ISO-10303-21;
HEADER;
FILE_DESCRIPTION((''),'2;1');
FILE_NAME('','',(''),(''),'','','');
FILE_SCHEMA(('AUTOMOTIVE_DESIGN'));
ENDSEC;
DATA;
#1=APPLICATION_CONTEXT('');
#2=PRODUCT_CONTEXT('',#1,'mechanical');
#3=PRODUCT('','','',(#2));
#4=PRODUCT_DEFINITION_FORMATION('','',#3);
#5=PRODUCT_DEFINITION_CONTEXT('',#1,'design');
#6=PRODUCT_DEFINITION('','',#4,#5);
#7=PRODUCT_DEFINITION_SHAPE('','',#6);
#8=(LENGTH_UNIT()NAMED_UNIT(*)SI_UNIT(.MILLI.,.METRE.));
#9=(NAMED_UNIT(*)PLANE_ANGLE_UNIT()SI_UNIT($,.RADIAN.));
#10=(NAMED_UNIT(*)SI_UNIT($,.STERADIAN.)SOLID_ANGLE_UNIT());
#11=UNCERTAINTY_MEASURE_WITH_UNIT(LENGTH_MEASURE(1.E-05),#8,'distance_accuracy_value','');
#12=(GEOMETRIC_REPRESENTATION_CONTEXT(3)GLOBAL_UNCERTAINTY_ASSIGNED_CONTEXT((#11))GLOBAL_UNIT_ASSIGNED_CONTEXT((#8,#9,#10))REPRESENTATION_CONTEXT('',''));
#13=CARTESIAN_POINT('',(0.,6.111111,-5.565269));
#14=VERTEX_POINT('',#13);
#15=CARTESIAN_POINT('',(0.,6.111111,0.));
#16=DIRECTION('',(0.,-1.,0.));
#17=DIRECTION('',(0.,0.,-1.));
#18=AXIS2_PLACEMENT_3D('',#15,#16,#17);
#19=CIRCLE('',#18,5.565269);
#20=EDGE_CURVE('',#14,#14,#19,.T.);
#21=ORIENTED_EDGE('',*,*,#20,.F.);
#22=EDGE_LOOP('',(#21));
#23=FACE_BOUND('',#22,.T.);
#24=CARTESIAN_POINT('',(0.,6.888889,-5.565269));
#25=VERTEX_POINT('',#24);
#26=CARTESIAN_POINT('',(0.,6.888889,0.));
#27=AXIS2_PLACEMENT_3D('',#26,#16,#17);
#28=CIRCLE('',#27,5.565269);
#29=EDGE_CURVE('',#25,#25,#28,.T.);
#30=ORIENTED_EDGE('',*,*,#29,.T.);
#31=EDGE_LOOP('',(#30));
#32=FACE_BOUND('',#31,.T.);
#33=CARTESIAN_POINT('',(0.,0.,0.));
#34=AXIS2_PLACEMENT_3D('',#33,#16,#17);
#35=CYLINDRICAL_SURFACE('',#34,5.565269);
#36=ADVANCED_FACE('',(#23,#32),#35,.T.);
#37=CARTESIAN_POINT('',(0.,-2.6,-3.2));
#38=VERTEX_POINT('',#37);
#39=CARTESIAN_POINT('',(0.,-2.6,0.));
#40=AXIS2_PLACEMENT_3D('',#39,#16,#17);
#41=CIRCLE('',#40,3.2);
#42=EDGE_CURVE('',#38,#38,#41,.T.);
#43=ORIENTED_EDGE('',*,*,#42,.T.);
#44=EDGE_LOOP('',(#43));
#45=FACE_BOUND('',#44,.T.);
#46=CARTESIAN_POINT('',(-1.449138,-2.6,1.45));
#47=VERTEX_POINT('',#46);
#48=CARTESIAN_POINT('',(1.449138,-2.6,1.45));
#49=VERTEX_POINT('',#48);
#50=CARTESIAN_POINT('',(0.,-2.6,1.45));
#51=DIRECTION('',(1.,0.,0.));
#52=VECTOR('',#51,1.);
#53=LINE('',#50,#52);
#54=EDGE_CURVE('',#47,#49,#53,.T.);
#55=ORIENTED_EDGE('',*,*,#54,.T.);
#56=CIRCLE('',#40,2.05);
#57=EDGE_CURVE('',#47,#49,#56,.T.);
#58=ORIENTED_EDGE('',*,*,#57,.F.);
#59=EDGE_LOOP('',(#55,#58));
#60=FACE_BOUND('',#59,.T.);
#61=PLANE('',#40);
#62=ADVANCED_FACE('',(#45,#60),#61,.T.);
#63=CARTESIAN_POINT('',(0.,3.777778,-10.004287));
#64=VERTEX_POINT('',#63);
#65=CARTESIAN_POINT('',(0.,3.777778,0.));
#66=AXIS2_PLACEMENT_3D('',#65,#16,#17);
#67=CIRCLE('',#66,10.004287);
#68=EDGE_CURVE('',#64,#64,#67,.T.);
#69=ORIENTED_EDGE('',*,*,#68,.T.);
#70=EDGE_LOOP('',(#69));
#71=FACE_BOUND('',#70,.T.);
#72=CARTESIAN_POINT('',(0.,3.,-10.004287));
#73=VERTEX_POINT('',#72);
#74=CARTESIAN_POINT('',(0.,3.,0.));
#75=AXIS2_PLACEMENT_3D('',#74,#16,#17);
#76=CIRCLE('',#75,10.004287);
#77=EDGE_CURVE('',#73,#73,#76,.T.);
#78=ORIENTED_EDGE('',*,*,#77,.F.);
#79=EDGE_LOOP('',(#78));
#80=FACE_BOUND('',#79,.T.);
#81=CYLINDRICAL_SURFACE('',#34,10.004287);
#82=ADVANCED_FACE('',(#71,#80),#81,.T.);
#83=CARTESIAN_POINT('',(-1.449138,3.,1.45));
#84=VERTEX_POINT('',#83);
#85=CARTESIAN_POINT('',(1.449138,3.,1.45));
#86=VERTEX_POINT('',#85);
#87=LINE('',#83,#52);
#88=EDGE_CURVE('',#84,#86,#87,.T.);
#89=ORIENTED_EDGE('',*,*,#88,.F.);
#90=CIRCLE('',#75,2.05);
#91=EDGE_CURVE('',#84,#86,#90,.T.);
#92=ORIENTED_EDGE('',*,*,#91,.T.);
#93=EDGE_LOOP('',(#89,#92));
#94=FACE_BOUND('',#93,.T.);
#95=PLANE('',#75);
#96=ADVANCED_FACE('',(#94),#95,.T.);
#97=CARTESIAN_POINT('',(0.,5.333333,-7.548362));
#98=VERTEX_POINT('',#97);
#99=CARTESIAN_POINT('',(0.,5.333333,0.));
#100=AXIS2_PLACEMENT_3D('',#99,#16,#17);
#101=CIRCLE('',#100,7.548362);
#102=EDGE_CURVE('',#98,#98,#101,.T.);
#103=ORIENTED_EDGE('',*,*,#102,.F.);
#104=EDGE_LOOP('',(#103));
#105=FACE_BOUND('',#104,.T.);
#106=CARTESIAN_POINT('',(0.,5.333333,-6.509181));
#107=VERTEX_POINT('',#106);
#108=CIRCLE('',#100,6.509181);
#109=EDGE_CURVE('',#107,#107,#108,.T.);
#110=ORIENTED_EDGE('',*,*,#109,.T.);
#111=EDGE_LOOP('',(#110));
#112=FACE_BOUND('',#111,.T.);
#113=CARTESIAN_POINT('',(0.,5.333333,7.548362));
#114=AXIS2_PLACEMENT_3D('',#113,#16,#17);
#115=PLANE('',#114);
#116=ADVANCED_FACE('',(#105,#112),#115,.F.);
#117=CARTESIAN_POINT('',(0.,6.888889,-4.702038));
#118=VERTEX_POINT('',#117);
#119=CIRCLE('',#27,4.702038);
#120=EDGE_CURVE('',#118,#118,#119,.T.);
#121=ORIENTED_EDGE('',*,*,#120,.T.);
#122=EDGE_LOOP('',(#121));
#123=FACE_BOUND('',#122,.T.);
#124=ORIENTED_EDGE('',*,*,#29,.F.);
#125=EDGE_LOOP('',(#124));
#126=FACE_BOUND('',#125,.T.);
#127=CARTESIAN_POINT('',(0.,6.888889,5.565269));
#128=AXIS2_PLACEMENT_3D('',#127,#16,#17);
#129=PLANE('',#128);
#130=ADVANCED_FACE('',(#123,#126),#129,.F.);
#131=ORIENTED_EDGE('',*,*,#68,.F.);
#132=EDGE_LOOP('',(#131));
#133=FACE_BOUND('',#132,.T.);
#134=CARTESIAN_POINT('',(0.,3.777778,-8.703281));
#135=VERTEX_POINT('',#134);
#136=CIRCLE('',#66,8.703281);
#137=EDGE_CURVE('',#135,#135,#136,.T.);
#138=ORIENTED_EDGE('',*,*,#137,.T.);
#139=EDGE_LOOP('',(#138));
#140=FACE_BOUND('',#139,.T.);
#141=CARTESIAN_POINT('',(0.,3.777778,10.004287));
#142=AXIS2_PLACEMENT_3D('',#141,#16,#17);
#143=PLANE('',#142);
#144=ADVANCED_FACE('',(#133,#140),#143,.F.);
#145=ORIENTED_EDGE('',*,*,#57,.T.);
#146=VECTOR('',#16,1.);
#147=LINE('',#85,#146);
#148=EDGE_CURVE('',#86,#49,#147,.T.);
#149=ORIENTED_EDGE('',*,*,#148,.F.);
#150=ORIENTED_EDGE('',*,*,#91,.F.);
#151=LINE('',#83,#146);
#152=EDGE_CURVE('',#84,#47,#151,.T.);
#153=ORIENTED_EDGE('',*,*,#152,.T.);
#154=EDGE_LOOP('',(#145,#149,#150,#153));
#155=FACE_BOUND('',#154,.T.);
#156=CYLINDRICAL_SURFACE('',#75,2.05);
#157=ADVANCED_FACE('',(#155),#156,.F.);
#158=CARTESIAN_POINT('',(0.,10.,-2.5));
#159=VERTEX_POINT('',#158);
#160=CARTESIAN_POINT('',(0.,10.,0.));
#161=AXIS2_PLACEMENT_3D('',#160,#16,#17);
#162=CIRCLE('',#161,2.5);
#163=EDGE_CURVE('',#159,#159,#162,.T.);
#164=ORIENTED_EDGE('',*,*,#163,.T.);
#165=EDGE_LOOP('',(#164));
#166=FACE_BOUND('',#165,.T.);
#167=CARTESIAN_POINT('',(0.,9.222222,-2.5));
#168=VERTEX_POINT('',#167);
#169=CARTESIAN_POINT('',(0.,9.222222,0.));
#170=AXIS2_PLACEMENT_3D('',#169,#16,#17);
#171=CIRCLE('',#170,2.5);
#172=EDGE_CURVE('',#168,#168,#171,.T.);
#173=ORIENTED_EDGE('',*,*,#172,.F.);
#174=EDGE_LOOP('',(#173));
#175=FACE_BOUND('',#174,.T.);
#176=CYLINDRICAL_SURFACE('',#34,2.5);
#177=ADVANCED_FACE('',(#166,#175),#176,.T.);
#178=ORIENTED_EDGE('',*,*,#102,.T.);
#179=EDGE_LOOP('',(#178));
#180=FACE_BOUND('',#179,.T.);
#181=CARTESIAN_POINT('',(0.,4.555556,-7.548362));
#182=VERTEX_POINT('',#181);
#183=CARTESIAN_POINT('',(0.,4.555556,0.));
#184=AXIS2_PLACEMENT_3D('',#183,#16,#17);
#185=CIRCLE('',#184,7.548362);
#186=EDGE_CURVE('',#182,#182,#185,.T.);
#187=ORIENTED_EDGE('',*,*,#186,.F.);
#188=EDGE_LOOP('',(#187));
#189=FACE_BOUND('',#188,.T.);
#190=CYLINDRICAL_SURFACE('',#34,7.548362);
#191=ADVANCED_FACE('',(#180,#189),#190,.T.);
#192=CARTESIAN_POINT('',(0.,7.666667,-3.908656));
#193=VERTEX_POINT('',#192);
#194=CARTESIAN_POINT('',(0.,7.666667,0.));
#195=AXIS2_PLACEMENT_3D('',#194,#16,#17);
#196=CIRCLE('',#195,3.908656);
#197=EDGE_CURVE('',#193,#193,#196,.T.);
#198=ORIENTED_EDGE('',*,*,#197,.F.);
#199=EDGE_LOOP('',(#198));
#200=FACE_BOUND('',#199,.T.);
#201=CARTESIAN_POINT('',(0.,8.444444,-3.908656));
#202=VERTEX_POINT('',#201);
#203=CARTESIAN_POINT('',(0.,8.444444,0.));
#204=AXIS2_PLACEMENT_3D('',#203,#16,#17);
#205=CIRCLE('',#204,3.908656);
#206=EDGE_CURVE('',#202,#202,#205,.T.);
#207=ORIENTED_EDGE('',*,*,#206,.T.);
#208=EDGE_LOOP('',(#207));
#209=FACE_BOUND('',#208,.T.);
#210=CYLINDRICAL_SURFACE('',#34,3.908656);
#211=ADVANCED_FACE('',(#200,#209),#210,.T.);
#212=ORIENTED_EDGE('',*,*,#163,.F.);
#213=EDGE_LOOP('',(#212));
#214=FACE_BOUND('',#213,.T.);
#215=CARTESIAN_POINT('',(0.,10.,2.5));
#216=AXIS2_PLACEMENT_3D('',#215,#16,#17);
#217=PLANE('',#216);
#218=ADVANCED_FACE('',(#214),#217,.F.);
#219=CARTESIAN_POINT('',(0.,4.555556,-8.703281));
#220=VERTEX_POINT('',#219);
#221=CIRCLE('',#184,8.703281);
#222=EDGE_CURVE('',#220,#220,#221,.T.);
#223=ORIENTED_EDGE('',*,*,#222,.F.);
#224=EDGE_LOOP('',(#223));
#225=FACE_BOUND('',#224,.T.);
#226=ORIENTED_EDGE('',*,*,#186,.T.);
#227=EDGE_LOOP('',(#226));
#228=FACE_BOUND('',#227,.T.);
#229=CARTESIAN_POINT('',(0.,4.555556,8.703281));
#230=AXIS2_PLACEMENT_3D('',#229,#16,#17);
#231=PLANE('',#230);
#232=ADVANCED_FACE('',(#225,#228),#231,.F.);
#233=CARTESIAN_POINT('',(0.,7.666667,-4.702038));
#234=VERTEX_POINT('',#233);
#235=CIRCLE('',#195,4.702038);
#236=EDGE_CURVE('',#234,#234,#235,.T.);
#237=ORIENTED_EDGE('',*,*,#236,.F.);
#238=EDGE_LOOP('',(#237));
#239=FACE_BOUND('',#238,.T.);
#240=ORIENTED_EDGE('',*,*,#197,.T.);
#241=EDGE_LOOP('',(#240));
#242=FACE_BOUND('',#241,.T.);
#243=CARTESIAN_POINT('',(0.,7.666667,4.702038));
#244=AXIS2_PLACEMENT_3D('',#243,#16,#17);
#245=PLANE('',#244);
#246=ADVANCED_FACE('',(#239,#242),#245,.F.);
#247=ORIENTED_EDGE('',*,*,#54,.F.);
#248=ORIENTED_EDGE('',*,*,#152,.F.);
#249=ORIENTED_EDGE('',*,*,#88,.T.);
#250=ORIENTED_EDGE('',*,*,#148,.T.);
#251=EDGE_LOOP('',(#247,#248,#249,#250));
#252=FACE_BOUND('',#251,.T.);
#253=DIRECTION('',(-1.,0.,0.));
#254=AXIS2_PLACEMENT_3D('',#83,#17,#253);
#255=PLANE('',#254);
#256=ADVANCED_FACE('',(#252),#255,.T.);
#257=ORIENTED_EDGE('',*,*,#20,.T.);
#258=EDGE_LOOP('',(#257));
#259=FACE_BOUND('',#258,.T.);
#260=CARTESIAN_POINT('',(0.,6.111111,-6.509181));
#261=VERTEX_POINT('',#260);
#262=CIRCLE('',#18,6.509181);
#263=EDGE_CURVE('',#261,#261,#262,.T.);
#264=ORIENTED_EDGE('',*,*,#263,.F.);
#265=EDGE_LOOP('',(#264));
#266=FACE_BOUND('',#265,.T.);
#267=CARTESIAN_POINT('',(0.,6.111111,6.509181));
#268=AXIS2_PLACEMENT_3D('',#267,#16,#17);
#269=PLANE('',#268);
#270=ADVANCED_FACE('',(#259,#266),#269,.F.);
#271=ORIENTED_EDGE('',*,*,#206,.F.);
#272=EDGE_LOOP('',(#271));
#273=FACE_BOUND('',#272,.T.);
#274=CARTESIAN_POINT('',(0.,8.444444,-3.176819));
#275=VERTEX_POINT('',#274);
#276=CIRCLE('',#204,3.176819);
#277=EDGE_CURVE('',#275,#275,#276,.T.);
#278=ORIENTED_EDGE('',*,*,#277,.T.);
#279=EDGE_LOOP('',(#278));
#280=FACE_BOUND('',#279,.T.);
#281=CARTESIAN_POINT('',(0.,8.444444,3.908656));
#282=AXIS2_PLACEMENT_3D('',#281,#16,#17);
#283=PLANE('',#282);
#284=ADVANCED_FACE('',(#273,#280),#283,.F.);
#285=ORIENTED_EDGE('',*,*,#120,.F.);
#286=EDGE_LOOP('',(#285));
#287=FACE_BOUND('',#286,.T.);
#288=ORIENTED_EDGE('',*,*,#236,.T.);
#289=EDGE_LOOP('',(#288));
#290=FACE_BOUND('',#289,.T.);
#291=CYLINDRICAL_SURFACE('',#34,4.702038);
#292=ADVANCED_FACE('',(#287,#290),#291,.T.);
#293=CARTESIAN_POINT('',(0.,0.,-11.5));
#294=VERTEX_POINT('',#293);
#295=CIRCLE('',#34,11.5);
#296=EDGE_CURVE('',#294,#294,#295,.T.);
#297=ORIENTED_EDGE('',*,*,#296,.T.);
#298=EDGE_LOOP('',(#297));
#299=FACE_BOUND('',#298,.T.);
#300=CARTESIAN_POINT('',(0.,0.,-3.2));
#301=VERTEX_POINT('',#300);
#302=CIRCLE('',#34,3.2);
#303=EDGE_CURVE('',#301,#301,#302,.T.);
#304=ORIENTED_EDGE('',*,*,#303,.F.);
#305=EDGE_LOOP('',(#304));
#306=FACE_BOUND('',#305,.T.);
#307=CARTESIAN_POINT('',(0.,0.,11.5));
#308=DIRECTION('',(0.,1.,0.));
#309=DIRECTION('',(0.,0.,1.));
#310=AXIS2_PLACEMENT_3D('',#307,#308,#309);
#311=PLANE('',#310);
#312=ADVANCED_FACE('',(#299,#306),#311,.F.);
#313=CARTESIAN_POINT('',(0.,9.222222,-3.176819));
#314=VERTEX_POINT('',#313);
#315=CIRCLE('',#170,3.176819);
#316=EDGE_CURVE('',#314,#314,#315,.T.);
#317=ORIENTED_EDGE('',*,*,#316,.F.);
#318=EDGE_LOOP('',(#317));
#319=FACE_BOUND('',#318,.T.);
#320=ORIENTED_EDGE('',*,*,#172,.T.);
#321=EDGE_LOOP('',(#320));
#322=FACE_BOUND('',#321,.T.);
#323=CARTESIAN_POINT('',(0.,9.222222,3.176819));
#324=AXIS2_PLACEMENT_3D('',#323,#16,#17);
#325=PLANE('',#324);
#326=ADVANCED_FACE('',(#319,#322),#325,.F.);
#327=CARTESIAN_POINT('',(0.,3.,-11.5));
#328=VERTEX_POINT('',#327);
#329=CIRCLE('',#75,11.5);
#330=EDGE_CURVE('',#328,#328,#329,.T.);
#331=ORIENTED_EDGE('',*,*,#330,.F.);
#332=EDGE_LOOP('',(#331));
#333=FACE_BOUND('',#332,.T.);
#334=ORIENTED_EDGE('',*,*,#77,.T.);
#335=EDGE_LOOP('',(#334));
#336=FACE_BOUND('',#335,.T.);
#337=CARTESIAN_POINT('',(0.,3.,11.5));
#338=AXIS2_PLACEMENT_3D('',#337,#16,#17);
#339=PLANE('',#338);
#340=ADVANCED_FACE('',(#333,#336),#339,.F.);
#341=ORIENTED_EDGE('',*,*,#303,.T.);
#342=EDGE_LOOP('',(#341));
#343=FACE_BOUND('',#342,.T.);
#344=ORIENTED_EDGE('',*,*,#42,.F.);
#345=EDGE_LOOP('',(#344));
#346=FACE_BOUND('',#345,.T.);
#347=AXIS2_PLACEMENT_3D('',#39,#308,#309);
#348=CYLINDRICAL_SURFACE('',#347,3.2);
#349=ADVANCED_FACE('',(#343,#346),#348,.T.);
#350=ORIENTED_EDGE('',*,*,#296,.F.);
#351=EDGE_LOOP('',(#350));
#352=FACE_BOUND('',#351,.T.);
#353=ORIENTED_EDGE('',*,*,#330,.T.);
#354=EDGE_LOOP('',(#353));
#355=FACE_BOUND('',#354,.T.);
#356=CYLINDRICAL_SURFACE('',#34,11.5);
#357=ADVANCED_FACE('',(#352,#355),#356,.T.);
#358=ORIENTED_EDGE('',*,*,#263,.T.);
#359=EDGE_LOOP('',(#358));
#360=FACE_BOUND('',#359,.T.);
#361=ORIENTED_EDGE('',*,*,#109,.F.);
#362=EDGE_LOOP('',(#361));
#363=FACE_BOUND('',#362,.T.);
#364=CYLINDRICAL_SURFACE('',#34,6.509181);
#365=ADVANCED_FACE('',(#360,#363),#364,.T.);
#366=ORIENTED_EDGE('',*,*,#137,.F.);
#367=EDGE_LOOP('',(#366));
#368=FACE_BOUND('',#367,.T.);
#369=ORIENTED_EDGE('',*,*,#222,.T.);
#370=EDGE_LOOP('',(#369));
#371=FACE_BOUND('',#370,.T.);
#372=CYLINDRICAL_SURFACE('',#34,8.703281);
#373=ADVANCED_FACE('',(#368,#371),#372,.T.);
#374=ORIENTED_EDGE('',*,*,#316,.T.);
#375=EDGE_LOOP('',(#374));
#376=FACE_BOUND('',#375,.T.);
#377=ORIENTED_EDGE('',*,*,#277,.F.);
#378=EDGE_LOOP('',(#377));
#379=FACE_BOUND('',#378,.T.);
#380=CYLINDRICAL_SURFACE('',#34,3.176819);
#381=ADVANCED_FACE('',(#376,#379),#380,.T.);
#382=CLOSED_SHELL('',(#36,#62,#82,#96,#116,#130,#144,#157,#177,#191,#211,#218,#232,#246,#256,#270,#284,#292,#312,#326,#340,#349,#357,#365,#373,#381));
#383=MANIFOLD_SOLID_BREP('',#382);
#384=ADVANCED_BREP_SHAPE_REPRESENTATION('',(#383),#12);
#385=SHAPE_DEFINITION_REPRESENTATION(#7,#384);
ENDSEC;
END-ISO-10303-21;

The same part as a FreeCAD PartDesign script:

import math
import FreeCAD as App
import Part
import Sketcher
from FreeCAD import Vector


def add_polygon(sketch, points):
    """Adds a closed chain of lines whose ends are joined by coincident constraints."""
    first, n = sketch.GeometryCount, len(points)
    for a, b in zip(points, points[1:] + points[:1]):
        sketch.addGeometry(Part.LineSegment(App.Vector(*a, 0), App.Vector(*b, 0)), False)
    for i in range(n):
        sketch.addConstraint(Sketcher.Constraint("Coincident", first + i, 2, first + (i + 1) % n, 1))

doc = App.newDocument("Part")
body = doc.addObject("PartDesign::Body", "Body")

# Sketch on YZ plane
sketch1 = body.newObject("Sketcher::SketchObject", "Sketch")
sketch1.AttachmentSupport = (doc.getObject("YZ_Plane"), [""])
sketch1.MapMode = "FlatFace"
add_polygon(sketch1, [(3, 11.5), (0, 11.5), (0, 0), (10, 0), (10, 2.5), (9.2, 2.5), (9.2, 3.2), (8.4, 3.2), (8.4, 3.9), (7.7, 3.9), (7.7, 4.7), (6.9, 4.7), (6.9, 5.6), (6.1, 5.6), (6.1, 6.5), (5.3, 6.5), (5.3, 7.5), (4.6, 7.5), (4.6, 8.7), (3.8, 8.7), (3.8, 10), (3, 10)])  # lines 0-21
sketch1.addConstraint(Sketcher.Constraint("Horizontal", 0))
sketch1.addConstraint(Sketcher.Constraint("Vertical", 1))
sketch1.addConstraint(Sketcher.Constraint("Horizontal", 2))
sketch1.addConstraint(Sketcher.Constraint("Vertical", 3))
sketch1.addConstraint(Sketcher.Constraint("Horizontal", 4))
sketch1.addConstraint(Sketcher.Constraint("Vertical", 5))
sketch1.addConstraint(Sketcher.Constraint("Horizontal", 6))
sketch1.addConstraint(Sketcher.Constraint("Vertical", 7))
sketch1.addConstraint(Sketcher.Constraint("Horizontal", 8))
sketch1.addConstraint(Sketcher.Constraint("Vertical", 9))
sketch1.addConstraint(Sketcher.Constraint("Horizontal", 10))
sketch1.addConstraint(Sketcher.Constraint("Vertical", 11))
sketch1.addConstraint(Sketcher.Constraint("Horizontal", 12))
sketch1.addConstraint(Sketcher.Constraint("Vertical", 13))
sketch1.addConstraint(Sketcher.Constraint("Horizontal", 14))
sketch1.addConstraint(Sketcher.Constraint("Vertical", 15))
sketch1.addConstraint(Sketcher.Constraint("Horizontal", 16))
sketch1.addConstraint(Sketcher.Constraint("Vertical", 17))
sketch1.addConstraint(Sketcher.Constraint("Horizontal", 18))
sketch1.addConstraint(Sketcher.Constraint("Vertical", 19))
sketch1.addConstraint(Sketcher.Constraint("Horizontal", 20))
sketch1.addConstraint(Sketcher.Constraint("Vertical", 21))
sketch1.addConstraint(Sketcher.Constraint("Coincident", 1, 2, -1, 1))
sketch1.addConstraint(Sketcher.Constraint("Equal", 4, 6))
sketch1.addConstraint(Sketcher.Constraint("Equal", 6, 8))
sketch1.addConstraint(Sketcher.Constraint("Equal", 8, 10))
sketch1.addConstraint(Sketcher.Constraint("Equal", 10, 12))
sketch1.addConstraint(Sketcher.Constraint("Equal", 12, 14))
sketch1.addConstraint(Sketcher.Constraint("Equal", 14, 16))
sketch1.addConstraint(Sketcher.Constraint("Equal", 16, 18))
sketch1.addConstraint(Sketcher.Constraint("Equal", 18, 20))
sketch1.addConstraint(Sketcher.Constraint("DistanceX", 0, 2, 0, 1, 3.0))
sketch1.addConstraint(Sketcher.Constraint("DistanceX", 2, 1, 2, 2, 10.0))
sketch1.addConstraint(Sketcher.Constraint("DistanceY", 1, 2, 1, 1, 11.5))
sketch1.addConstraint(Sketcher.Constraint("DistanceY", 3, 1, 3, 2, 2.5))
sketch1.addConstraint(Sketcher.Constraint("DistanceY", 5, 1, 5, 2, 0.676819))
sketch1.addConstraint(Sketcher.Constraint("DistanceY", 9, 1, 9, 2, 0.793382))
sketch1.addConstraint(Sketcher.Constraint("DistanceY", 11, 1, 11, 2, 0.863231))
sketch1.addConstraint(Sketcher.Constraint("DistanceY", 15, 1, 15, 2, 1.039181))
sketch1.addConstraint(Sketcher.Constraint("DistanceY", 17, 1, 17, 2, 1.154919))
sketch1.addConstraint(Sketcher.Constraint("DistanceY", 7, 1, 7, 2, 0.731837))
sketch1.addConstraint(Sketcher.Constraint("DistanceY", 13, 1, 13, 2, 0.943912))
sketch1.addConstraint(Sketcher.Constraint("DistanceY", 19, 1, 19, 2, 1.301006))
revolution = body.newObject("PartDesign::Revolution", "Revolution")
revolution.Profile = sketch1
revolution.ReferenceAxis = (sketch1, ["H_Axis"])
revolution.Angle = 360

# Sketch on XZ plane
sketch2 = body.newObject("Sketcher::SketchObject", "Sketch001")
sketch2.AttachmentSupport = (doc.getObject("XZ_Plane"), [""])
sketch2.MapMode = "FlatFace"
sketch2.addGeometry(Part.Circle(Vector(0, 0, 0), Vector(0, 0, 1), 3.2), False)
sketch2.addConstraint(Sketcher.Constraint("Coincident", 0, 3, -1, 1))
sketch2.addConstraint(Sketcher.Constraint("Diameter", 0, 6.4))
pad1 = body.newObject("PartDesign::Pad", "Pad")
pad1.Profile = sketch2
pad1.Length = 2.6

# Sketch on XZ plane
sketch3 = body.newObject("Sketcher::SketchObject", "Sketch002")
sketch3.AttachmentSupport = (doc.getObject("XZ_Plane"), [""])
sketch3.MapMode = "FlatFace"
sketch3.addGeometry(Part.LineSegment(Vector(1.4, 1.4, 0), Vector(-1.4, 1.4, 0)), False)
sketch3.addGeometry(Part.ArcOfCircle(Part.Circle(Vector(0, 0, 0), Vector(0, 0, 1), 2), math.radians(135), math.radians(405)), False)
sketch3.addConstraint(Sketcher.Constraint("Coincident", 0, 1, 1, 2))
sketch3.addConstraint(Sketcher.Constraint("Coincident", 1, 1, 0, 2))
sketch3.addConstraint(Sketcher.Constraint("Horizontal", 0))
sketch3.addConstraint(Sketcher.Constraint("Coincident", 1, 3, -1, 1))
sketch3.addConstraint(Sketcher.Constraint("Radius", 1, 2.05))
sketch3.addConstraint(Sketcher.Constraint("DistanceY", -1, 1, 0, 1, 1.45))
pocket1 = body.newObject("PartDesign::Pocket", "Pocket")
pocket1.Profile = sketch3
pocket1.Type = "TwoLengths"
pocket1.Length = 3
pocket1.Length2 = 3
pocket1.Reversed = True

doc.recompute()
